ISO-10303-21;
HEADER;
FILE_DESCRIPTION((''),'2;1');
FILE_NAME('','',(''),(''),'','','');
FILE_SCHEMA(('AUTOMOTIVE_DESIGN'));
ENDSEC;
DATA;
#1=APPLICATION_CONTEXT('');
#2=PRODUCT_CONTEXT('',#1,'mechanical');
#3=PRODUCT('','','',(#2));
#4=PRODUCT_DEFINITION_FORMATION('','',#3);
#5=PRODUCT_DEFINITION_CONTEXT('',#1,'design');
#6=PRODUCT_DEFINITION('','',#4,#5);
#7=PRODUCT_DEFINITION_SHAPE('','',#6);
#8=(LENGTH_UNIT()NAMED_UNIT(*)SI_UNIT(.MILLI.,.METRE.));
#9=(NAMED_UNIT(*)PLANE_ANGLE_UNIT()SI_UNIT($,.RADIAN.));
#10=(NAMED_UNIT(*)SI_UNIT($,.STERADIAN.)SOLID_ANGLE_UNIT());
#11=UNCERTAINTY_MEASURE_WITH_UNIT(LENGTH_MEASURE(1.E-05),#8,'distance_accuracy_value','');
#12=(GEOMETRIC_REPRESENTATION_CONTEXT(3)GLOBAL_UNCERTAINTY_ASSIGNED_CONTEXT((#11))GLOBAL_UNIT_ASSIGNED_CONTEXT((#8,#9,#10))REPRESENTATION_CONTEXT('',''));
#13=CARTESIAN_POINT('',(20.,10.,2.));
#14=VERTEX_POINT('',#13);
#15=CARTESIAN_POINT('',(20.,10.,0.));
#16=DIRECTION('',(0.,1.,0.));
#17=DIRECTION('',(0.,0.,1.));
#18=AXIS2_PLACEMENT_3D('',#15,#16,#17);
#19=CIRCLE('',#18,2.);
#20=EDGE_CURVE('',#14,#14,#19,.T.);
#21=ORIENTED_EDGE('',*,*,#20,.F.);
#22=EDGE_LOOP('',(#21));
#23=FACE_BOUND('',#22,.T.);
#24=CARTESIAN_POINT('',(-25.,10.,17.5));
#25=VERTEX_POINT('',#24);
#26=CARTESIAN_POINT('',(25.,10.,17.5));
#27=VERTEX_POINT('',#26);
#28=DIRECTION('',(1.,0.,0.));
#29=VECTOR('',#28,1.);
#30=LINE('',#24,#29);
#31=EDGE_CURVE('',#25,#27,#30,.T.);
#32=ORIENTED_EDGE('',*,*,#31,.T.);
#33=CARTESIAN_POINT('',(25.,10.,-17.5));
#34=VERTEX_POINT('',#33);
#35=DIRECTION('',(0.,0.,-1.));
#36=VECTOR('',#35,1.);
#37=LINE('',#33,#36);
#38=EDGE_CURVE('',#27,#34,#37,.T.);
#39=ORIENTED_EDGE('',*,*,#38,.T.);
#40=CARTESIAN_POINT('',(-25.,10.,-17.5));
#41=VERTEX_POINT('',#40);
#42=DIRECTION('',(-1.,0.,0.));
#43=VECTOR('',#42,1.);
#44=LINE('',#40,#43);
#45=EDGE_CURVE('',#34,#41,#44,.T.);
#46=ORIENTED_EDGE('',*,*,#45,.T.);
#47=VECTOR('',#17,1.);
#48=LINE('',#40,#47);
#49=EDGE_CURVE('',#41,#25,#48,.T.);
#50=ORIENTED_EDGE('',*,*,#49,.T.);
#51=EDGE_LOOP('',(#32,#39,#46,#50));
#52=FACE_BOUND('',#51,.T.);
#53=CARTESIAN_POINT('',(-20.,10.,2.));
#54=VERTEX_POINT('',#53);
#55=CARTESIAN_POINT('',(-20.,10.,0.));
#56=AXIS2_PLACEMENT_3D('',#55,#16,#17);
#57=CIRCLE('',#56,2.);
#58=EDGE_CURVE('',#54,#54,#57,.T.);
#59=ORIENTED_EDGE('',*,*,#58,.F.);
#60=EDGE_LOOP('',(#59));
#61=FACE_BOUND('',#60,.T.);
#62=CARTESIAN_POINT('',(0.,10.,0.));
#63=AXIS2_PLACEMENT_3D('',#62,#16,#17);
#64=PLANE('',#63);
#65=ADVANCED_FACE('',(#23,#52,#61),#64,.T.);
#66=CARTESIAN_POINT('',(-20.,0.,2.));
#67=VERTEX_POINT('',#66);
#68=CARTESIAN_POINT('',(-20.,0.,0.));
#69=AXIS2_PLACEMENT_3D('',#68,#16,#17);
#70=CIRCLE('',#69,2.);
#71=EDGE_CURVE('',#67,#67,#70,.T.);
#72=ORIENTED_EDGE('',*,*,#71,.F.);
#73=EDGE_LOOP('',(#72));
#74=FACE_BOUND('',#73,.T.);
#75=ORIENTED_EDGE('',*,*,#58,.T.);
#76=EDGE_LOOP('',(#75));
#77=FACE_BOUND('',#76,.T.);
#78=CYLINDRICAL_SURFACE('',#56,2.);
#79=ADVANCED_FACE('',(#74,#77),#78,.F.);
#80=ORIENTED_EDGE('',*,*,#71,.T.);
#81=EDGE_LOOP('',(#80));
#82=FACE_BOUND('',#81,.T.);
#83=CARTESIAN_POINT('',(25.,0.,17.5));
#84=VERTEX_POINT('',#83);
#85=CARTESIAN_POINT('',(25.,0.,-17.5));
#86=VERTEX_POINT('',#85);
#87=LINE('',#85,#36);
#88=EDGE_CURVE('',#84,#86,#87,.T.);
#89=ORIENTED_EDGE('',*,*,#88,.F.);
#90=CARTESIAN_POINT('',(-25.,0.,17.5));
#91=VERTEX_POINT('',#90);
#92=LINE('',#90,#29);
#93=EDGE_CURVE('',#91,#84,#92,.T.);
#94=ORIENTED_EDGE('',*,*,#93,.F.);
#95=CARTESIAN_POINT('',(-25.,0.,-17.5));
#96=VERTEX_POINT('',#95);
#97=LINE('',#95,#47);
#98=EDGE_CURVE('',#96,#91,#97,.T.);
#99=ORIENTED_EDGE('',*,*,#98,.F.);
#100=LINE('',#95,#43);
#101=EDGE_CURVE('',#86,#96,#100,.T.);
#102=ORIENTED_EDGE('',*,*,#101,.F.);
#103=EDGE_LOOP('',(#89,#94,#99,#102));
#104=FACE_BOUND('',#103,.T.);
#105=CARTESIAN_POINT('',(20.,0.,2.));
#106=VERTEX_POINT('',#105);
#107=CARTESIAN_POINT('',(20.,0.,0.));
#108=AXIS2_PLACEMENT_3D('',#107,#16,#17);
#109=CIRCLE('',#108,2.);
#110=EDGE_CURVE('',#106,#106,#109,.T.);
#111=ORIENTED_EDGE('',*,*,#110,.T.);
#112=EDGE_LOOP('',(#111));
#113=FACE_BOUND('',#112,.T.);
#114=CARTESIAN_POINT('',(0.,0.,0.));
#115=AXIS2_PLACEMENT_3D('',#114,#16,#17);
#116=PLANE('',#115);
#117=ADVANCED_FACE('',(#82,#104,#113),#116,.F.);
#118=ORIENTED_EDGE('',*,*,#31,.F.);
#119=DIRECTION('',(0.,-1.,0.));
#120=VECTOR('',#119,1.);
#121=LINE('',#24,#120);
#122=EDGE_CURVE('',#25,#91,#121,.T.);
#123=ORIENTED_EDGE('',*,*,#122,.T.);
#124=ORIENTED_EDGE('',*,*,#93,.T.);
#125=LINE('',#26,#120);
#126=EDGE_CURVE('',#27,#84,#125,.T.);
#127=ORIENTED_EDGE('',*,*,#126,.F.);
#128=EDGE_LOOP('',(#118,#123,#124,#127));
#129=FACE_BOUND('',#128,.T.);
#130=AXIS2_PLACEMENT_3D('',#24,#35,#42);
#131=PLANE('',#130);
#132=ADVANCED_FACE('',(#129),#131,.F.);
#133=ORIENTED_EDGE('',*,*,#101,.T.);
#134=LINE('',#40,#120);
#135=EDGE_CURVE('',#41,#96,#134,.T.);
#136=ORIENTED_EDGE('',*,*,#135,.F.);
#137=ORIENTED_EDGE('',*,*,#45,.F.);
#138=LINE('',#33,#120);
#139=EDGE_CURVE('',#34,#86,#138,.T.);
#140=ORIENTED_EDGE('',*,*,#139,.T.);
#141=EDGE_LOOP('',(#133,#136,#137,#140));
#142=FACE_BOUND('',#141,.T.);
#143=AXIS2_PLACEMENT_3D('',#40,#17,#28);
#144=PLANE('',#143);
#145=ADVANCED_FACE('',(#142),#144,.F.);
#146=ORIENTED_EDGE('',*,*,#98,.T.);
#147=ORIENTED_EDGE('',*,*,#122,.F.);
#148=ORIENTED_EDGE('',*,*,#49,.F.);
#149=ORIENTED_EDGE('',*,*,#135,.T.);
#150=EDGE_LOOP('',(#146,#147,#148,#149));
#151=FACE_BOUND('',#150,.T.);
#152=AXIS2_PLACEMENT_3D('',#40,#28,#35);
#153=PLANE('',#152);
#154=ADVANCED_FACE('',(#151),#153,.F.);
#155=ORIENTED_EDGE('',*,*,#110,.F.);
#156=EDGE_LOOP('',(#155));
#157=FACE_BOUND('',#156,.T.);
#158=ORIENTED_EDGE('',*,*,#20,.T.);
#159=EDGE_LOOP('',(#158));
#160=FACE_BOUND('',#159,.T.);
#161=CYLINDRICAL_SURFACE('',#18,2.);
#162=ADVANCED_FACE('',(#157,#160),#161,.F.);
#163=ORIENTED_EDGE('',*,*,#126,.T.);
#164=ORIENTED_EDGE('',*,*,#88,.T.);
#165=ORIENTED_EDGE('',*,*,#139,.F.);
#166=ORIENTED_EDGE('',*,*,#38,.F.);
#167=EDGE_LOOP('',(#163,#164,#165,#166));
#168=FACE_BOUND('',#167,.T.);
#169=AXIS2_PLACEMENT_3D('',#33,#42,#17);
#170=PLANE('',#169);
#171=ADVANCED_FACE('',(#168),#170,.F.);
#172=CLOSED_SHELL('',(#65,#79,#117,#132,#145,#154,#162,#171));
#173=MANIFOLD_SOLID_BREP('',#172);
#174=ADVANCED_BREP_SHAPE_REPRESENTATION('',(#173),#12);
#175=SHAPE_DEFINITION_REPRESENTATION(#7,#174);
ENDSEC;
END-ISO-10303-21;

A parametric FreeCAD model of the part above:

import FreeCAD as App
import Part
import Sketcher
Q = App.Units.Quantity

doc = App.newDocument("Part")
body = doc.addObject("PartDesign::Body", "Body")

sketch1 = body.newObject("Sketcher::SketchObject", "Sketch")
sketch1.AttachmentSupport = (doc.getObject("XZ_Plane"), [""])
sketch1.MapMode = "FlatFace"
sketch1.addGeometry([
    Part.LineSegment(App.Vector(-25, -18, 0), App.Vector(-25, 18, 0)),
    Part.LineSegment(App.Vector(-25, 18, 0), App.Vector(25, 18, 0)),
    Part.LineSegment(App.Vector(25, 18, 0), App.Vector(25, -18, 0)),
    Part.LineSegment(App.Vector(25, -18, 0), App.Vector(-25, -18, 0)),
], False)
sketch1.addConstraint([
    Sketcher.Constraint("Coincident", 0, 2, 1, 1),
    Sketcher.Constraint("Coincident", 1, 2, 2, 1),
    Sketcher.Constraint("Coincident", 2, 2, 3, 1),
    Sketcher.Constraint("Coincident", 3, 2, 0, 1),
    Sketcher.Constraint("Vertical", 0),
    Sketcher.Constraint("Horizontal", 1),
    Sketcher.Constraint("Vertical", 2),
    Sketcher.Constraint("Horizontal", 3),
    Sketcher.Constraint("Symmetric", 0, 2, 2, 2, -1, 1),
    Sketcher.Constraint("DistanceX", 1, 1, 1, 2, Q("50 mm")),
    Sketcher.Constraint("DistanceY", 0, 1, 0, 2, Q("35 mm")),
])
pad1 = body.newObject("PartDesign::Pad", "Pad")
pad1.Profile = sketch1
pad1.Length = 10
pad1.Reversed = True

sketch2 = body.newObject("Sketcher::SketchObject", "Sketch001")
sketch2.AttachmentSupport = (doc.getObject("XZ_Plane"), [""])
sketch2.MapMode = "FlatFace"
sketch2.AttachmentOffset = App.Placement(App.Vector(0, 0, -10), App.Rotation())
sketch2.addGeometry([
    Part.Circle(App.Vector(-20, 0, 0), App.Vector(0, 0, 1), 2),
    Part.Circle(App.Vector(20, 0, 0), App.Vector(0, 0, 1), 2),
], False)
sketch2.addConstraint([
    Sketcher.Constraint("Equal", 0, 1),
    Sketcher.Constraint("Symmetric", 0, 3, 1, 3, -1, 1),
    Sketcher.Constraint("PointOnObject", 0, 3, -1),
    Sketcher.Constraint("Diameter", 0, Q("4 mm")),
    Sketcher.Constraint("DistanceX", 0, 3, -1, 1, Q("20 mm")),
])
doc.recompute()
hole = body.newObject("PartDesign::Hole", "Hole")
hole.Profile = sketch2
hole.ThreadType = "None"
hole.Diameter = 4
hole.DepthType = "ThroughAll"
hole.Reversed = True

doc.recompute()
